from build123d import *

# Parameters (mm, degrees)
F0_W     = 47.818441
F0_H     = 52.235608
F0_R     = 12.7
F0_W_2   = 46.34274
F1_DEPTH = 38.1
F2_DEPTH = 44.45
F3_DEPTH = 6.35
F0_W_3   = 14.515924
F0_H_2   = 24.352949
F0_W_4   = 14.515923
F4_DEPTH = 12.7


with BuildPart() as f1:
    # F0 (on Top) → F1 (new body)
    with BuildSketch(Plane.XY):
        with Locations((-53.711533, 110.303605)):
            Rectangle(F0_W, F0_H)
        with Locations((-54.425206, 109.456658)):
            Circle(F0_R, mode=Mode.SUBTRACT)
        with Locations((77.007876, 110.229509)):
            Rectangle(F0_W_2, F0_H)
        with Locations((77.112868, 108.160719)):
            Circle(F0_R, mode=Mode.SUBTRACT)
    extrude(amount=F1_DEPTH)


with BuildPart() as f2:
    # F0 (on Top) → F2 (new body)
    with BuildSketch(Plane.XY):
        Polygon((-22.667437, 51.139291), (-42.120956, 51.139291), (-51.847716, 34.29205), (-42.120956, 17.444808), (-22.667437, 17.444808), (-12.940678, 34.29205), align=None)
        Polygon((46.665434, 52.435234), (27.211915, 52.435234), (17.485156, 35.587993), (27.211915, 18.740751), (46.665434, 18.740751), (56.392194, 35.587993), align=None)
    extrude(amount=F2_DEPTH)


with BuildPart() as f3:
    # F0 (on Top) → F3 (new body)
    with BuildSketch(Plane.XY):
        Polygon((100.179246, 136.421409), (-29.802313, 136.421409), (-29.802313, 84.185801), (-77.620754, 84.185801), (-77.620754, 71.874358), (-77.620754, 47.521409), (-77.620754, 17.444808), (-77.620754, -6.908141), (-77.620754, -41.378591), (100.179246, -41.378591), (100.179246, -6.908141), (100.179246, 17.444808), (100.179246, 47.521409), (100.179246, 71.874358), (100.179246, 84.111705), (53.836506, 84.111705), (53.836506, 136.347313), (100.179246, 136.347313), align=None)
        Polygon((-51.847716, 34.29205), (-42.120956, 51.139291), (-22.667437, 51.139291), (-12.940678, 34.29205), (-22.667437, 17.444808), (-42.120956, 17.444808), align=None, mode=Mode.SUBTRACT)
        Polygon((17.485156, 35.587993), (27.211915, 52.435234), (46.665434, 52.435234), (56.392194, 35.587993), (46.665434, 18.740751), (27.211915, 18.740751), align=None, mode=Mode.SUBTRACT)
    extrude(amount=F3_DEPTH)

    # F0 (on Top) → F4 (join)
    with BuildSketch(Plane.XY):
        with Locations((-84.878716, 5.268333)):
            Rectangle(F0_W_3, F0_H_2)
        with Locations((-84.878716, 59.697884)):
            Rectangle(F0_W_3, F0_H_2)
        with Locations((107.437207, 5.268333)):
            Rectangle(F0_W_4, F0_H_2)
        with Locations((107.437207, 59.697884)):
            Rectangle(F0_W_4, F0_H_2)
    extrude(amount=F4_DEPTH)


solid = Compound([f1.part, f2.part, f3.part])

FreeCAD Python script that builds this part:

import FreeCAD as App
import Part
import Sketcher

V = App.Vector
Q = App.Units.Quantity

doc = App.newDocument("Part")
params = doc.addObject("Spreadsheet::Sheet", "Params")
for row, (alias, value) in enumerate([
    ("sketch1_diameter", "1 in"),
    ("pad1_length", "1.5 in"),
    ("pad2_length", "1.75 in"),
    ("sketch3_width", "7 in"),
    ("pad3_length", "0.25 in"),
    ("pad4_length", "0.5 in"),
], start=1):
    params.set(f"A{row}", alias)
    params.set(f"B{row}", "=" + value)
    params.setAlias(f"B{row}", alias)

body = doc.addObject("PartDesign::Body", "Body")
body.AllowCompound = True

sketch1 = body.newObject("Sketcher::SketchObject", "Sketch")
sketch1.AttachmentSupport = (doc.getObject("XY_Plane"), [""])
sketch1.MapMode = "FlatFace"
sketch1.addGeometry(Part.LineSegment(V(-78, 136, 0), V(-78, 84, 0)), False)
sketch1.addGeometry(Part.LineSegment(V(-78, 84, 0), V(-30, 84, 0)), False)
sketch1.addGeometry(Part.LineSegment(V(-30, 84, 0), V(-30, 136, 0)), False)
sketch1.addGeometry(Part.LineSegment(V(-30, 136, 0), V(-78, 136, 0)), False)
sketch1.addGeometry(Part.Circle(V(-54, 109, 0), V(0, 0, 1), 13), False)
sketch1.addGeometry(Part.LineSegment(V(54, 136, 0), V(54, 84, 0)), False)
sketch1.addGeometry(Part.LineSegment(V(54, 84, 0), V(100, 84, 0)), False)
sketch1.addGeometry(Part.LineSegment(V(100, 84, 0), V(100, 136, 0)), False)
sketch1.addGeometry(Part.LineSegment(V(100, 136, 0), V(54, 136, 0)), False)
sketch1.addGeometry(Part.Circle(V(77, 108, 0), V(0, 0, 1), 13), False)
sketch1.addConstraint(Sketcher.Constraint("Coincident", 0, 2, 1, 1))
sketch1.addConstraint(Sketcher.Constraint("Coincident", 1, 2, 2, 1))
sketch1.addConstraint(Sketcher.Constraint("Coincident", 2, 2, 3, 1))
sketch1.addConstraint(Sketcher.Constraint("Coincident", 3, 2, 0, 1))
sketch1.addConstraint(Sketcher.Constraint("Coincident", 5, 2, 6, 1))
sketch1.addConstraint(Sketcher.Constraint("Coincident", 6, 2, 7, 1))
sketch1.addConstraint(Sketcher.Constraint("Coincident", 7, 2, 8, 1))
sketch1.addConstraint(Sketcher.Constraint("Coincident", 8, 2, 5, 1))
sketch1.addConstraint(Sketcher.Constraint("Vertical", 0))
sketch1.addConstraint(Sketcher.Constraint("Horizontal", 1))
sketch1.addConstraint(Sketcher.Constraint("Vertical", 2))
sketch1.addConstraint(Sketcher.Constraint("Horizontal", 3))
sketch1.addConstraint(Sketcher.Constraint("Vertical", 5))
sketch1.addConstraint(Sketcher.Constraint("Horizontal", 6))
sketch1.addConstraint(Sketcher.Constraint("Vertical", 7))
sketch1.addConstraint(Sketcher.Constraint("Horizontal", 8))
sketch1.addConstraint(Sketcher.Constraint("Equal", 4, 9))
sketch1.addConstraint(Sketcher.Constraint("Equal", 2, 5))
sketch1.addConstraint(Sketcher.Constraint("Diameter", 4, Q("1 in")))
sketch1.addConstraint(Sketcher.Constraint("DistanceX", 1, 1, 1, 2, Q("47.818441 mm")))
sketch1.addConstraint(Sketcher.Constraint("DistanceX", 6, 1, 6, 2, Q("46.34274 mm")))
sketch1.addConstraint(Sketcher.Constraint("DistanceY", 0, 2, 0, 1, Q("52.235608 mm")))
sketch1.addConstraint(Sketcher.Constraint("DistanceY", -1, 1, 0, 2, Q("84.185801 mm")))
sketch1.addConstraint(Sketcher.Constraint("DistanceY", -1, 1, 4, 3, Q("109.456658 mm")))
sketch1.addConstraint(Sketcher.Constraint("DistanceX", -1, 1, 9, 3, Q("77.112868 mm")))
sketch1.addConstraint(Sketcher.Constraint("DistanceY", -1, 1, 9, 3, Q("108.160719 mm")))
sketch1.addConstraint(Sketcher.Constraint("DistanceX", 0, 2, 9, 3, Q("154.733622 mm")))
sketch1.addConstraint(Sketcher.Constraint("DistanceX", 1, 2, 5, 2, Q("83.638818 mm")))
sketch1.addConstraint(Sketcher.Constraint("DistanceX", 4, 3, 6, 2, Q("154.604452 mm")))
sketch1.addConstraint(Sketcher.Constraint("DistanceY", -1, 1, 5, 2, Q("84.111705 mm")))
sketch1.setExpression("Constraints[18]", "Params.sketch1_diameter")
pad1 = body.newObject("PartDesign::Pad", "Pad")
pad1.Profile = sketch1
pad1.setExpression("Length", "Params.pad1_length")
body2 = doc.addObject("PartDesign::Body", "Body001")
body2.AllowCompound = True

sketch2 = body2.newObject("Sketcher::SketchObject", "Sketch001")
sketch2.AttachmentSupport = (doc.getObject("XY_Plane001"), [""])
sketch2.MapMode = "FlatFace"
sketch2.addGeometry(Part.LineSegment(V(-23, 51, 0), V(-42, 51, 0)), False)
sketch2.addGeometry(Part.LineSegment(V(-42, 51, 0), V(-52, 34, 0)), False)
sketch2.addGeometry(Part.LineSegment(V(-52, 34, 0), V(-42, 17, 0)), False)
sketch2.addGeometry(Part.LineSegment(V(-42, 17, 0), V(-23, 17, 0)), False)
sketch2.addGeometry(Part.LineSegment(V(-23, 17, 0), V(-13, 34, 0)), False)
sketch2.addGeometry(Part.LineSegment(V(-13, 34, 0), V(-23, 51, 0)), False)
sketch2.addGeometry(Part.LineSegment(V(47, 52, 0), V(27, 52, 0)), False)
sketch2.addGeometry(Part.LineSegment(V(27, 52, 0), V(17, 36, 0)), False)
sketch2.addGeometry(Part.LineSegment(V(17, 36, 0), V(27, 19, 0)), False)
sketch2.addGeometry(Part.LineSegment(V(27, 19, 0), V(47, 19, 0)), False)
sketch2.addGeometry(Part.LineSegment(V(47, 19, 0), V(56, 36, 0)), False)
sketch2.addGeometry(Part.LineSegment(V(56, 36, 0), V(47, 52, 0)), False)
sketch2.addConstraint(Sketcher.Constraint("Coincident", 0, 2, 1, 1))
sketch2.addConstraint(Sketcher.Constraint("Coincident", 1, 2, 2, 1))
sketch2.addConstraint(Sketcher.Constraint("Coincident", 2, 2, 3, 1))
sketch2.addConstraint(Sketcher.Constraint("Coincident", 3, 2, 4, 1))
sketch2.addConstraint(Sketcher.Constraint("Coincident", 4, 2, 5, 1))
sketch2.addConstraint(Sketcher.Constraint("Coincident", 5, 2, 0, 1))
sketch2.addConstraint(Sketcher.Constraint("Coincident", 6, 2, 7, 1))
sketch2.addConstraint(Sketcher.Constraint("Coincident", 7, 2, 8, 1))
sketch2.addConstraint(Sketcher.Constraint("Coincident", 8, 2, 9, 1))
sketch2.addConstraint(Sketcher.Constraint("Coincident", 9, 2, 10, 1))
sketch2.addConstraint(Sketcher.Constraint("Coincident", 10, 2, 11, 1))
sketch2.addConstraint(Sketcher.Constraint("Coincident", 11, 2, 6, 1))
sketch2.addConstraint(Sketcher.Constraint("Horizontal", 0))
sketch2.addConstraint(Sketcher.Constraint("Horizontal", 3))
sketch2.addConstraint(Sketcher.Constraint("Horizontal", 6))
sketch2.addConstraint(Sketcher.Constraint("Horizontal", 9))
sketch2.addConstraint(Sketcher.Constraint("Parallel", 1, 4))
sketch2.addConstraint(Sketcher.Constraint("Parallel", 2, 5))
sketch2.addConstraint(Sketcher.Constraint("Parallel", 4, 7))
sketch2.addConstraint(Sketcher.Constraint("Parallel", 5, 8))
sketch2.addConstraint(Sketcher.Constraint("Parallel", 7, 10))
sketch2.addConstraint(Sketcher.Constraint("Parallel", 8, 11))
sketch2.addConstraint(Sketcher.Constraint("Horizontal", 1, 2, 4, 2))
sketch2.addConstraint(Sketcher.Constraint("Horizontal", 7, 2, 10, 2))
sketch2.addConstraint(Sketcher.Constraint("Vertical", 0, 2, 2, 2))
sketch2.addConstraint(Sketcher.Constraint("Vertical", 3, 2, 5, 2))
sketch2.addConstraint(Sketcher.Constraint("Vertical", 6, 2, 8, 2))
sketch2.addConstraint(Sketcher.Constraint("Equal", 3, 6))
sketch2.addConstraint(Sketcher.Constraint("Equal", 5, 7))
sketch2.addConstraint(Sketcher.Constraint("Angle", 1, Q("-120.000002 deg")))
sketch2.addConstraint(Sketcher.Constraint("DistanceX", 0, 2, 0, 1, Q("19.453519 mm")))
sketch2.addConstraint(Sketcher.Constraint("DistanceY", 7, 2, 5, 2, Q("15.551298 mm")))
sketch2.addConstraint(Sketcher.Constraint("Distance", 1, Q("19.453519 mm")))
sketch2.addConstraint(Sketcher.Constraint("DistanceY", -1, 1, 0, 2, Q("51.139291 mm")))
sketch2.addConstraint(Sketcher.Constraint("DistanceX", 5, 2, 6, 2, Q("49.879352 mm")))
sketch2.addConstraint(Sketcher.Constraint("DistanceX", 0, 2, -1, 1, Q("42.120956 mm")))
pad2 = body2.newObject("PartDesign::Pad", "Pad001")
pad2.Profile = sketch2
pad2.setExpression("Length", "Params.pad2_length")
body3 = doc.addObject("PartDesign::Body", "Body002")

sketch3 = body3.newObject("Sketcher::SketchObject", "Sketch002")
sketch3.AttachmentSupport = (doc.getObject("XY_Plane002"), [""])
sketch3.MapMode = "FlatFace"
sketch3.addGeometry(Part.LineSegment(V(100.18, 136.42, 0), V(-29.8, 136.42, 0)), False)
sketch3.addGeometry(Part.LineSegment(V(-29.8, 136.42, 0), V(-29.8, 84.19, 0)), False)
sketch3.addGeometry(Part.LineSegment(V(-29.8, 84.19, 0), V(-77.62, 84.19, 0)), False)
sketch3.addGeometry(Part.LineSegment(V(-77.62, 84.19, 0), V(-77.62, -41.38, 0)), False)
sketch3.addGeometry(Part.LineSegment(V(-77.62, -41.38, 0), V(100.18, -41.38, 0)), False)
sketch3.addGeometry(Part.LineSegment(V(100.18, -41.38, 0), V(100.18, 84.11, 0)), False)
sketch3.addGeometry(Part.LineSegment(V(100.18, 84.11, 0), V(53.84, 84.11, 0)), False)
sketch3.addGeometry(Part.LineSegment(V(53.84, 84.11, 0), V(53.84, 136.35, 0)), False)
sketch3.addGeometry(Part.LineSegment(V(53.84, 136.35, 0), V(100.18, 136.35, 0)), False)
sketch3.addGeometry(Part.LineSegment(V(100.18, 136.35, 0), V(100.18, 136.42, 0)), False)
sketch3.addGeometry(Part.LineSegment(V(-42.12, 17.44, 0), V(-51.85, 34.29, 0)), False)
sketch3.addGeometry(Part.LineSegment(V(-51.85, 34.29, 0), V(-42.12, 51.14, 0)), False)
sketch3.addGeometry(Part.LineSegment(V(-42.12, 51.14, 0), V(-22.67, 51.14, 0)), False)
sketch3.addGeometry(Part.LineSegment(V(-22.67, 51.14, 0), V(-12.94, 34.29, 0)), False)
sketch3.addGeometry(Part.LineSegment(V(-12.94, 34.29, 0), V(-22.67, 17.44, 0)), False)
sketch3.addGeometry(Part.LineSegment(V(-22.67, 17.44, 0), V(-42.12, 17.44, 0)), False)
sketch3.addGeometry(Part.LineSegment(V(27.21, 18.74, 0), V(17.49, 35.59, 0)), False)
sketch3.addGeometry(Part.LineSegment(V(17.49, 35.59, 0), V(27.21, 52.44, 0)), False)
sketch3.addGeometry(Part.LineSegment(V(27.21, 52.44, 0), V(46.67, 52.44, 0)), False)
sketch3.addGeometry(Part.LineSegment(V(46.67, 52.44, 0), V(56.39, 35.59, 0)), False)
sketch3.addGeometry(Part.LineSegment(V(56.39, 35.59, 0), V(46.67, 18.74, 0)), False)
sketch3.addGeometry(Part.LineSegment(V(46.67, 18.74, 0), V(27.21, 18.74, 0)), False)
sketch3.addConstraint(Sketcher.Constraint("Coincident", 0, 2, 1, 1))
sketch3.addConstraint(Sketcher.Constraint("Coincident", 1, 2, 2, 1))
sketch3.addConstraint(Sketcher.Constraint("Coincident", 2, 2, 3, 1))
sketch3.addConstraint(Sketcher.Constraint("Coincident", 3, 2, 4, 1))
sketch3.addConstraint(Sketcher.Constraint("Coincident", 4, 2, 5, 1))
sketch3.addConstraint(Sketcher.Constraint("Coincident", 5, 2, 6, 1))
sketch3.addConstraint(Sketcher.Constraint("Coincident", 6, 2, 7, 1))
sketch3.addConstraint(Sketcher.Constraint("Coincident", 7, 2, 8, 1))
sketch3.addConstraint(Sketcher.Constraint("Coincident", 8, 2, 9, 1))
sketch3.addConstraint(Sketcher.Constraint("Coincident", 9, 2, 0, 1))
sketch3.addConstraint(Sketcher.Constraint("Coincident", 10, 2, 11, 1))
sketch3.addConstraint(Sketcher.Constraint("Coincident", 11, 2, 12, 1))
sketch3.addConstraint(Sketcher.Constraint("Coincident", 12, 2, 13, 1))
sketch3.addConstraint(Sketcher.Constraint("Coincident", 13, 2, 14, 1))
sketch3.addConstraint(Sketcher.Constraint("Coincident", 14, 2, 15, 1))
sketch3.addConstraint(Sketcher.Constraint("Coincident", 15, 2, 10, 1))
sketch3.addConstraint(Sketcher.Constraint("Coincident", 16, 2, 17, 1))
sketch3.addConstraint(Sketcher.Constraint("Coincident", 17, 2, 18, 1))
sketch3.addConstraint(Sketcher.Constraint("Coincident", 18, 2, 19, 1))
sketch3.addConstraint(Sketcher.Constraint("Coincident", 19, 2, 20, 1))
sketch3.addConstraint(Sketcher.Constraint("Coincident", 20, 2, 21, 1))
sketch3.addConstraint(Sketcher.Constraint("Coincident", 21, 2, 16, 1))
sketch3.addConstraint(Sketcher.Constraint("Horizontal", 0))
sketch3.addConstraint(Sketcher.Constraint("Vertical", 1))
sketch3.addConstraint(Sketcher.Constraint("Horizontal", 2))
sketch3.addConstraint(Sketcher.Constraint("Vertical", 3))
sketch3.addConstraint(Sketcher.Constraint("Horizontal", 4))
sketch3.addConstraint(Sketcher.Constraint("Vertical", 5))
sketch3.addConstraint(Sketcher.Constraint("Horizontal", 6))
sketch3.addConstraint(Sketcher.Constraint("Vertical", 7))
sketch3.addConstraint(Sketcher.Constraint("Horizontal", 8))
sketch3.addConstraint(Sketcher.Constraint("Vertical", 9))
sketch3.addConstraint(Sketcher.Constraint("Horizontal", 12))
sketch3.addConstraint(Sketcher.Constraint("Horizontal", 15))
sketch3.addConstraint(Sketcher.Constraint("Horizontal", 18))
sketch3.addConstraint(Sketcher.Constraint("Horizontal", 21))
sketch3.addConstraint(Sketcher.Constraint("Parallel", 10, 13))
sketch3.addConstraint(Sketcher.Constraint("Parallel", 11, 14))
sketch3.addConstraint(Sketcher.Constraint("Parallel", 13, 16))
sketch3.addConstraint(Sketcher.Constraint("Parallel", 14, 17))
sketch3.addConstraint(Sketcher.Constraint("Parallel", 16, 19))
sketch3.addConstraint(Sketcher.Constraint("Parallel", 17, 20))
sketch3.addConstraint(Sketcher.Constraint("Horizontal", 10, 2, 13, 2))
sketch3.addConstraint(Sketcher.Constraint("Horizontal", 16, 2, 19, 2))
sketch3.addConstraint(Sketcher.Constraint("Vertical", 5, 2, 8, 2))
sketch3.addConstraint(Sketcher.Constraint("Vertical", 12, 2, 14, 2))
sketch3.addConstraint(Sketcher.Constraint("Vertical", 11, 2, 15, 2))
sketch3.addConstraint(Sketcher.Constraint("Vertical", 18, 2, 20, 2))
sketch3.addConstraint(Sketcher.Constraint("Equal", 15, 18))
sketch3.addConstraint(Sketcher.Constraint("Equal", 1, 7))
sketch3.addConstraint(Sketcher.Constraint("Equal", 14, 16))
sketch3.addConstraint(Sketcher.Constraint("DistanceX", 4, 1, 4, 2, Q("7 in")))
sketch3.addConstraint(Sketcher.Constraint("Angle", 10, Q("120.000001 deg")))
sketch3.addConstraint(Sketcher.Constraint("DistanceY", 3, 2, 0, 2, Q("7 in")))
sketch3.addConstraint(Sketcher.Constraint("DistanceX", 0, 2, 0, 1, Q("129.981559 mm")))
sketch3.addConstraint(Sketcher.Constraint("DistanceX", 6, 2, 6, 1, Q("46.34274 mm")))
sketch3.addConstraint(Sketcher.Constraint("DistanceX", 12, 1, 12, 2, Q("19.453519 mm")))
sketch3.addConstraint(Sketcher.Constraint("DistanceY", 1, 2, 1, 1, Q("52.235608 mm")))
sketch3.addConstraint(Sketcher.Constraint("DistanceY", -1, 1, 1, 2, Q("84.185801 mm")))
sketch3.addConstraint(Sketcher.Constraint("DistanceX", 2, 2, 11, 2, Q("35.499798 mm")))
sketch3.addConstraint(Sketcher.Constraint("DistanceY", 16, 2, 12, 2, Q("15.551298 mm")))
sketch3.addConstraint(Sketcher.Constraint("Distance", 10, Q("19.45352 mm")))
sketch3.addConstraint(Sketcher.Constraint("DistanceY", 5, 1, 5, 2, Q("125.490296 mm")))
sketch3.addConstraint(Sketcher.Constraint("DistanceY", -1, 1, 10, 2, Q("34.29205 mm")))
sketch3.addConstraint(Sketcher.Constraint("DistanceX", 16, 2, 6, 2, Q("36.35135 mm")))
sketch3.addConstraint(Sketcher.Constraint("DistanceX", 0, 2, -1, 1, Q("29.802313 mm")))
sketch3.setExpression("Constraints[51]", "Params.sketch3_width")
pad3 = body3.newObject("PartDesign::Pad", "Pad002")
pad3.Profile = sketch3
pad3.setExpression("Length", "Params.pad3_length")

sketch4 = body3.newObject("Sketcher::SketchObject", "Sketch003")
sketch4.AttachmentSupport = (doc.getObject("XY_Plane002"), [""])
sketch4.MapMode = "FlatFace"
sketch4.addGeometry(Part.LineSegment(V(-92, 17, 0), V(-92, -7, 0)), False)
sketch4.addGeometry(Part.LineSegment(V(-92, -7, 0), V(-78, -7, 0)), False)
sketch4.addGeometry(Part.LineSegment(V(-78, -7, 0), V(-78, 17, 0)), False)
sketch4.addGeometry(Part.LineSegment(V(-78, 17, 0), V(-92, 17, 0)), False)
sketch4.addGeometry(Part.LineSegment(V(-92, 72, 0), V(-92, 48, 0)), False)
sketch4.addGeometry(Part.LineSegment(V(-92, 48, 0), V(-78, 48, 0)), False)
sketch4.addGeometry(Part.LineSegment(V(-78, 48, 0), V(-78, 72, 0)), False)
sketch4.addGeometry(Part.LineSegment(V(-78, 72, 0), V(-92, 72, 0)), False)
sketch4.addGeometry(Part.LineSegment(V(100, 17, 0), V(100, -7, 0)), False)
sketch4.addGeometry(Part.LineSegment(V(100, -7, 0), V(115, -7, 0)), False)
sketch4.addGeometry(Part.LineSegment(V(115, -7, 0), V(115, 17, 0)), False)
sketch4.addGeometry(Part.LineSegment(V(115, 17, 0), V(100, 17, 0)), False)
sketch4.addGeometry(Part.LineSegment(V(100, 72, 0), V(100, 48, 0)), False)
sketch4.addGeometry(Part.LineSegment(V(100, 48, 0), V(115, 48, 0)), False)
sketch4.addGeometry(Part.LineSegment(V(115, 48, 0), V(115, 72, 0)), False)
sketch4.addGeometry(Part.LineSegment(V(115, 72, 0), V(100, 72, 0)), False)
sketch4.addConstraint(Sketcher.Constraint("Coincident", 0, 2, 1, 1))
sketch4.addConstraint(Sketcher.Constraint("Coincident", 1, 2, 2, 1))
sketch4.addConstraint(Sketcher.Constraint("Coincident", 2, 2, 3, 1))
sketch4.addConstraint(Sketcher.Constraint("Coincident", 3, 2, 0, 1))
sketch4.addConstraint(Sketcher.Constraint("Coincident", 4, 2, 5, 1))
sketch4.addConstraint(Sketcher.Constraint("Coincident", 5, 2, 6, 1))
sketch4.addConstraint(Sketcher.Constraint("Coincident", 6, 2, 7, 1))
sketch4.addConstraint(Sketcher.Constraint("Coincident", 7, 2, 4, 1))
sketch4.addConstraint(Sketcher.Constraint("Coincident", 8, 2, 9, 1))
sketch4.addConstraint(Sketcher.Constraint("Coincident", 9, 2, 10, 1))
sketch4.addConstraint(Sketcher.Constraint("Coincident", 10, 2, 11, 1))
sketch4.addConstraint(Sketcher.Constraint("Coincident", 11, 2, 8, 1))
sketch4.addConstraint(Sketcher.Constraint("Coincident", 12, 2, 13, 1))
sketch4.addConstraint(Sketcher.Constraint("Coincident", 13, 2, 14, 1))
sketch4.addConstraint(Sketcher.Constraint("Coincident", 14, 2, 15, 1))
sketch4.addConstraint(Sketcher.Constraint("Coincident", 15, 2, 12, 1))
sketch4.addConstraint(Sketcher.Constraint("Vertical", 0))
sketch4.addConstraint(Sketcher.Constraint("Horizontal", 1))
sketch4.addConstraint(Sketcher.Constraint("Vertical", 2))
sketch4.addConstraint(Sketcher.Constraint("Horizontal", 3))
sketch4.addConstraint(Sketcher.Constraint("Vertical", 4))
sketch4.addConstraint(Sketcher.Constraint("Horizontal", 5))
sketch4.addConstraint(Sketcher.Constraint("Vertical", 6))
sketch4.addConstraint(Sketcher.Constraint("Horizontal", 7))
sketch4.addConstraint(Sketcher.Constraint("Vertical", 8))
sketch4.addConstraint(Sketcher.Constraint("Horizontal", 9))
sketch4.addConstraint(Sketcher.Constraint("Vertical", 10))
sketch4.addConstraint(Sketcher.Constraint("Horizontal", 11))
sketch4.addConstraint(Sketcher.Constraint("Vertical", 12))
sketch4.addConstraint(Sketcher.Constraint("Horizontal", 13))
sketch4.addConstraint(Sketcher.Constraint("Vertical", 14))
sketch4.addConstraint(Sketcher.Constraint("Horizontal", 15))
sketch4.addConstraint(Sketcher.Constraint("Horizontal", 1, 2, 8, 2))
sketch4.addConstraint(Sketcher.Constraint("Horizontal", 3, 2, 10, 2))
sketch4.addConstraint(Sketcher.Constraint("Horizontal", 5, 2, 12, 2))
sketch4.addConstraint(Sketcher.Constraint("Horizontal", 7, 2, 14, 2))
sketch4.addConstraint(Sketcher.Constraint("Vertical", 3, 2, 4, 2))
sketch4.addConstraint(Sketcher.Constraint("Vertical", 2, 2, 5, 2))
sketch4.addConstraint(Sketcher.Constraint("Vertical", 11, 2, 12, 2))
sketch4.addConstraint(Sketcher.Constraint("Vertical", 10, 2, 13, 2))
sketch4.addConstraint(Sketcher.Constraint("Equal", 7, 9))
sketch4.addConstraint(Sketcher.Constraint("Equal", 2, 4))
sketch4.addConstraint(Sketcher.Constraint("DistanceX", 1, 2, 8, 2, Q("7 in")))
sketch4.addConstraint(Sketcher.Constraint("DistanceY", 0, 2, 0, 1, Q("24.352949 mm")))
sketch4.addConstraint(Sketcher.Constraint("DistanceY", 3, 2, 4, 2, Q("30.076602 mm")))
sketch4.addConstraint(Sketcher.Constraint("DistanceX", 1, 1, 1, 2, Q("14.515924 mm")))
sketch4.addConstraint(Sketcher.Constraint("DistanceX", 0, 2, -1, 1, Q("92.136678 mm")))
sketch4.addConstraint(Sketcher.Constraint("DistanceY", 0, 2, -1, 1, Q("6.908142 mm")))
pad4 = body3.newObject("PartDesign::Pad", "Pad003")
pad4.Profile = sketch4
pad4.setExpression("Length", "Params.pad4_length")

doc.recompute()
